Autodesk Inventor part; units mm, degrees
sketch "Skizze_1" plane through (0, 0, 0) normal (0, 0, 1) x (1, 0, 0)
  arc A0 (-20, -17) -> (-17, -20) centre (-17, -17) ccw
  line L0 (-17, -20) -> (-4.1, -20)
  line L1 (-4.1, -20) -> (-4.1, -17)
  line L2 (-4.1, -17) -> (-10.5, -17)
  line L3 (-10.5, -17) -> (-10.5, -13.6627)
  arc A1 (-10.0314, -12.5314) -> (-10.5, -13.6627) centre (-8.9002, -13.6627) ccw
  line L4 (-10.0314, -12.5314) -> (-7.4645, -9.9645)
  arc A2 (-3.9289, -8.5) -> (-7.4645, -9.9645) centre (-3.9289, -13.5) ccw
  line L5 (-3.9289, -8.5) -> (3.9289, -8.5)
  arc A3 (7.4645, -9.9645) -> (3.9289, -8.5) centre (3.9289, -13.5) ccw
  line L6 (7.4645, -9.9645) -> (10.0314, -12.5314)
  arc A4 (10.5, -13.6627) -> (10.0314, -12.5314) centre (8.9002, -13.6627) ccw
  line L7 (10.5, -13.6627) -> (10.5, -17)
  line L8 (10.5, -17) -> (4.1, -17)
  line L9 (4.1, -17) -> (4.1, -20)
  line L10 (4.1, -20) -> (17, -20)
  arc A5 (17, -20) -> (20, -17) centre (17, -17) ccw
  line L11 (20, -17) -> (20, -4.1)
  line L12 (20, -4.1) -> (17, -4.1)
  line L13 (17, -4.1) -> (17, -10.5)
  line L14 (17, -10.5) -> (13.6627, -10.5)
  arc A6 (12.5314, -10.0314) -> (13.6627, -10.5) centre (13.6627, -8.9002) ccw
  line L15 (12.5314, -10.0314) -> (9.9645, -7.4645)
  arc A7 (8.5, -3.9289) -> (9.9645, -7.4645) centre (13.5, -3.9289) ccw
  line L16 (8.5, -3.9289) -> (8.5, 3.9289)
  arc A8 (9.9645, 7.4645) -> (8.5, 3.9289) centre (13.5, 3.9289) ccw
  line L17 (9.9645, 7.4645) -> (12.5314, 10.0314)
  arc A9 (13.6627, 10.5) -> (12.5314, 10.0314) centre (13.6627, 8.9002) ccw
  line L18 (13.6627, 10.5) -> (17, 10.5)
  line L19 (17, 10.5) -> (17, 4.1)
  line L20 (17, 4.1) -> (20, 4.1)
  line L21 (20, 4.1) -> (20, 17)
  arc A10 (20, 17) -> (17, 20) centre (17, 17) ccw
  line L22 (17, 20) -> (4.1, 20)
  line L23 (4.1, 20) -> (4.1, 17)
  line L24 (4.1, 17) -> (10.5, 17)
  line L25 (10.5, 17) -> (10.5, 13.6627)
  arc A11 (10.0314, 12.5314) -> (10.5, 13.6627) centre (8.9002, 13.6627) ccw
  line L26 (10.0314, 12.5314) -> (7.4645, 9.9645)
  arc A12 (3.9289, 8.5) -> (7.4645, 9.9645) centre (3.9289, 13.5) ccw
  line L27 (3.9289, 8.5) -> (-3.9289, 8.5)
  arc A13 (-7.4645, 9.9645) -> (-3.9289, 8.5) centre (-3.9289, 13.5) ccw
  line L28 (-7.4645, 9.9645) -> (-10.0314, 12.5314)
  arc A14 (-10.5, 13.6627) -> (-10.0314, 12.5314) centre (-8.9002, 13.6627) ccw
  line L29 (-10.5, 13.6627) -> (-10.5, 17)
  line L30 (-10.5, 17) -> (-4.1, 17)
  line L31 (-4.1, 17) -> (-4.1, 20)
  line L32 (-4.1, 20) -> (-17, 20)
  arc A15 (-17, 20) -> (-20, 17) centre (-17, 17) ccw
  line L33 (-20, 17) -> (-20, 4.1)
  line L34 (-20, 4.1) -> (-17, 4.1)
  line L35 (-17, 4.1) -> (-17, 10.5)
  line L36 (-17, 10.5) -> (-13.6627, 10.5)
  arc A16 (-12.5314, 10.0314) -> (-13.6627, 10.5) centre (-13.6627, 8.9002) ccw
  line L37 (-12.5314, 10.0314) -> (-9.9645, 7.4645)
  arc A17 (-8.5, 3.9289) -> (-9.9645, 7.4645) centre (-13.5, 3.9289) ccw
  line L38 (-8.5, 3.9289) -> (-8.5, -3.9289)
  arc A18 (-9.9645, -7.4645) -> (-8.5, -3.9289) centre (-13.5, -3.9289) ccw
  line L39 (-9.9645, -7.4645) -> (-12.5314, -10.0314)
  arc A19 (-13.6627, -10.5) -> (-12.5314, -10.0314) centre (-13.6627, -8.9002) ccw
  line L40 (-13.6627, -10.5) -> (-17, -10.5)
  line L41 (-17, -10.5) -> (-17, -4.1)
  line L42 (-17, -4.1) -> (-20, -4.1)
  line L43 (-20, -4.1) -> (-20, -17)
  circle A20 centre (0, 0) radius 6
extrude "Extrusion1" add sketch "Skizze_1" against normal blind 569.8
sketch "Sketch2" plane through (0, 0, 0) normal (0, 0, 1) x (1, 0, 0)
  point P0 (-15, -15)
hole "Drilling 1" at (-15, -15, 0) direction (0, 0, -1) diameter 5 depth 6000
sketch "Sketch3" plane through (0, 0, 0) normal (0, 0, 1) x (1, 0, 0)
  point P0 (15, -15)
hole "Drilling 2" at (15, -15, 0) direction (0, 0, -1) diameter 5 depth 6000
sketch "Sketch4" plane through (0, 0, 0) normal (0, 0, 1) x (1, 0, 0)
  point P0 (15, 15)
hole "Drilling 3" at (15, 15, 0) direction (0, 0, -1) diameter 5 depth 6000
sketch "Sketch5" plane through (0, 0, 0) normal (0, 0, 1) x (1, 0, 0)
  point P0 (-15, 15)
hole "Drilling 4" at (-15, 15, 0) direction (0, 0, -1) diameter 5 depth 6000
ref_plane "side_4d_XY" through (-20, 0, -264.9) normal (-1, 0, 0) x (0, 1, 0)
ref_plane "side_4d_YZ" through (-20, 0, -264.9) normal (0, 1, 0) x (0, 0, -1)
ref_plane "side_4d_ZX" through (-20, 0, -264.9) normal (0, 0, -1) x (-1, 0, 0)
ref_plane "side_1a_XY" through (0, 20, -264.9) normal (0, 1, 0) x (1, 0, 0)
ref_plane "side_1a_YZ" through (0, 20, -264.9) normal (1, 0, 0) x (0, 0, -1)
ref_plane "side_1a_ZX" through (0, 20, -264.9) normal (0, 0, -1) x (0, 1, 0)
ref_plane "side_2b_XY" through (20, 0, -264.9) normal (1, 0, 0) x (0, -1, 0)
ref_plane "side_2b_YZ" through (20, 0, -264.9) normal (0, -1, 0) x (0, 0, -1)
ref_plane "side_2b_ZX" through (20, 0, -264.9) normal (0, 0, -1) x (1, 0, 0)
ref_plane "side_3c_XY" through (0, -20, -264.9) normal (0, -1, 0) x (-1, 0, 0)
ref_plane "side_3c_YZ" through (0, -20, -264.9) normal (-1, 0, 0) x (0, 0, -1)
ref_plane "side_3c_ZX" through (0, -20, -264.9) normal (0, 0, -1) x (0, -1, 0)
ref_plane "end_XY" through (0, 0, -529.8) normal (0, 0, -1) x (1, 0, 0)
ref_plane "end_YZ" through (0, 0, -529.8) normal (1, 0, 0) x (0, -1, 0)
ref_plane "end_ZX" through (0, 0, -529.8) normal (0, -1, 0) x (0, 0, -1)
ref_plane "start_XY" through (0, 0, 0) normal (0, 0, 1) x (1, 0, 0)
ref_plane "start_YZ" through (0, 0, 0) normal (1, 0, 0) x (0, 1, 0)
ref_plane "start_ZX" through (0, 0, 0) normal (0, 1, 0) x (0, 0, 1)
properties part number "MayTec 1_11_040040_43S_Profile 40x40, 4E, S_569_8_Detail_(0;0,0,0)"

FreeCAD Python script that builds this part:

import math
import FreeCAD as App
import Part
import Sketcher

V = App.Vector

doc = App.newDocument("Part")
body = doc.addObject("PartDesign::Body", "Body")

# Sketch on XY plane
sketch1 = body.newObject("Sketcher::SketchObject", "Sketch")
sketch1.AttachmentSupport = (doc.getObject("XY_Plane"), [""])
sketch1.MapMode = "FlatFace"
sketch1.addGeometry(Part.LineSegment(V(-20, -4.1, 0), V(-20, -17, 0)), False)
sketch1.addGeometry(Part.ArcOfCircle(Part.Circle(V(-17, -17, 0), V(0, 0, 1), 3), math.radians(180), math.radians(270)), False)
sketch1.addGeometry(Part.LineSegment(V(-17, -20, 0), V(-4.1, -20, 0)), False)
sketch1.addGeometry(Part.LineSegment(V(-4.1, -20, 0), V(-4.1, -17, 0)), False)
sketch1.addGeometry(Part.LineSegment(V(-4.1, -17, 0), V(-10.5, -17, 0)), False)
sketch1.addGeometry(Part.LineSegment(V(-10.5, -17, 0), V(-10.5, -13.6627, 0)), False)
sketch1.addGeometry(Part.ArcOfCircle(Part.Circle(V(-8.9002, -13.6627, 0), V(0, 0, 1), 1.599829), math.radians(134.997468), math.radians(180)), False)
sketch1.addGeometry(Part.LineSegment(V(-10.0314, -12.5314, 0), V(-7.4645, -9.9645, 0)), False)
sketch1.addGeometry(Part.ArcOfCircle(Part.Circle(V(-3.9289, -13.5, 0), V(0, 0, 1), 5), math.radians(90), math.radians(135.00081)), False)
sketch1.addGeometry(Part.LineSegment(V(-3.9289, -8.5, 0), V(3.9289, -8.5, 0)), False)
sketch1.addGeometry(Part.ArcOfCircle(Part.Circle(V(3.9289, -13.5, 0), V(0, 0, 1), 5.000023), math.radians(44.99919), math.radians(90)), False)
sketch1.addGeometry(Part.LineSegment(V(7.4645, -9.9645, 0), V(10.0314, -12.5314, 0)), False)
sketch1.addGeometry(Part.ArcOfCircle(Part.Circle(V(8.9002, -13.6627, 0), V(0, 0, 1), 1.5998), math.radians(0), math.radians(45.002532)), False)
sketch1.addGeometry(Part.LineSegment(V(10.5, -13.6627, 0), V(10.5, -17, 0)), False)
sketch1.addGeometry(Part.LineSegment(V(10.5, -17, 0), V(4.1, -17, 0)), False)
sketch1.addGeometry(Part.LineSegment(V(4.1, -17, 0), V(4.1, -20, 0)), False)
sketch1.addGeometry(Part.LineSegment(V(4.1, -20, 0), V(17, -20, 0)), False)
sketch1.addGeometry(Part.ArcOfCircle(Part.Circle(V(17, -17, 0), V(0, 0, 1), 3), math.radians(-90), math.radians(0)), False)
sketch1.addGeometry(Part.LineSegment(V(20, -17, 0), V(20, -4.1, 0)), False)
sketch1.addGeometry(Part.LineSegment(V(20, -4.1, 0), V(17, -4.1, 0)), False)
sketch1.addGeometry(Part.LineSegment(V(17, -4.1, 0), V(17, -10.5, 0)), False)
sketch1.addGeometry(Part.LineSegment(V(17, -10.5, 0), V(13.6627, -10.5, 0)), False)
sketch1.addGeometry(Part.ArcOfCircle(Part.Circle(V(13.6627, -8.9002, 0), V(0, 0, 1), 1.599829), math.radians(-135.002532), math.radians(-90)), False)
sketch1.addGeometry(Part.LineSegment(V(12.5314, -10.0314, 0), V(9.9645, -7.4645, 0)), False)
sketch1.addGeometry(Part.ArcOfCircle(Part.Circle(V(13.5, -3.9289, 0), V(0, 0, 1), 5), math.radians(180), math.radians(225.00081)), False)
sketch1.addGeometry(Part.LineSegment(V(8.5, -3.9289, 0), V(8.5, 3.9289, 0)), False)
sketch1.addGeometry(Part.ArcOfCircle(Part.Circle(V(13.5, 3.9289, 0), V(0, 0, 1), 5.000023), math.radians(134.99919), math.radians(180)), False)
sketch1.addGeometry(Part.LineSegment(V(9.9645, 7.4645, 0), V(12.5314, 10.0314, 0)), False)
sketch1.addGeometry(Part.ArcOfCircle(Part.Circle(V(13.6627, 8.9002, 0), V(0, 0, 1), 1.5998), math.radians(90), math.radians(135.002532)), False)
sketch1.addGeometry(Part.LineSegment(V(13.6627, 10.5, 0), V(17, 10.5, 0)), False)
sketch1.addGeometry(Part.LineSegment(V(17, 10.5, 0), V(17, 4.1, 0)), False)
sketch1.addGeometry(Part.LineSegment(V(17, 4.1, 0), V(20, 4.1, 0)), False)
sketch1.addGeometry(Part.LineSegment(V(20, 4.1, 0), V(20, 17, 0)), False)
sketch1.addGeometry(Part.ArcOfCircle(Part.Circle(V(17, 17, 0), V(0, 0, 1), 3), math.radians(0), math.radians(90)), False)
sketch1.addGeometry(Part.LineSegment(V(17, 20, 0), V(4.1, 20, 0)), False)
sketch1.addGeometry(Part.LineSegment(V(4.1, 20, 0), V(4.1, 17, 0)), False)
sketch1.addGeometry(Part.LineSegment(V(4.1, 17, 0), V(10.5, 17, 0)), False)
sketch1.addGeometry(Part.LineSegment(V(10.5, 17, 0), V(10.5, 13.6627, 0)), False)
sketch1.addGeometry(Part.ArcOfCircle(Part.Circle(V(8.9002, 13.6627, 0), V(0, 0, 1), 1.599829), math.radians(-45.002532), math.radians(0)), False)
sketch1.addGeometry(Part.LineSegment(V(10.0314, 12.5314, 0), V(7.4645, 9.9645, 0)), False)
sketch1.addGeometry(Part.ArcOfCircle(Part.Circle(V(3.9289, 13.5, 0), V(0, 0, 1), 5), math.radians(-90), math.radians(-44.99919)), False)
sketch1.addGeometry(Part.LineSegment(V(3.9289, 8.5, 0), V(-3.9289, 8.5, 0)), False)
sketch1.addGeometry(Part.ArcOfCircle(Part.Circle(V(-3.9289, 13.5, 0), V(0, 0, 1), 5.000023), math.radians(-135.00081), math.radians(-90)), False)
sketch1.addGeometry(Part.LineSegment(V(-7.4645, 9.9645, 0), V(-10.0314, 12.5314, 0)), False)
sketch1.addGeometry(Part.ArcOfCircle(Part.Circle(V(-8.9002, 13.6627, 0), V(0, 0, 1), 1.5998), math.radians(180), math.radians(225.002532)), False)
sketch1.addGeometry(Part.LineSegment(V(-10.5, 13.6627, 0), V(-10.5, 17, 0)), False)
sketch1.addGeometry(Part.LineSegment(V(-10.5, 17, 0), V(-4.1, 17, 0)), False)
sketch1.addGeometry(Part.LineSegment(V(-4.1, 17, 0), V(-4.1, 20, 0)), False)
sketch1.addGeometry(Part.LineSegment(V(-4.1, 20, 0), V(-17, 20, 0)), False)
sketch1.addGeometry(Part.ArcOfCircle(Part.Circle(V(-17, 17, 0), V(0, 0, 1), 3), math.radians(90), math.radians(180)), False)
sketch1.addGeometry(Part.LineSegment(V(-20, 17, 0), V(-20, 4.1, 0)), False)
sketch1.addGeometry(Part.LineSegment(V(-20, 4.1, 0), V(-17, 4.1, 0)), False)
sketch1.addGeometry(Part.LineSegment(V(-17, 4.1, 0), V(-17, 10.5, 0)), False)
sketch1.addGeometry(Part.LineSegment(V(-17, 10.5, 0), V(-13.6627, 10.5, 0)), False)
sketch1.addGeometry(Part.ArcOfCircle(Part.Circle(V(-13.6627, 8.9002, 0), V(0, 0, 1), 1.599829), math.radians(44.997468), math.radians(90)), False)
sketch1.addGeometry(Part.LineSegment(V(-12.5314, 10.0314, 0), V(-9.9645, 7.4645, 0)), False)
sketch1.addGeometry(Part.ArcOfCircle(Part.Circle(V(-13.5, 3.9289, 0), V(0, 0, 1), 5), math.radians(0), math.radians(45.00081)), False)
sketch1.addGeometry(Part.LineSegment(V(-8.5, 3.9289, 0), V(-8.5, -3.9289, 0)), False)
sketch1.addGeometry(Part.ArcOfCircle(Part.Circle(V(-13.5, -3.9289, 0), V(0, 0, 1), 5.000023), math.radians(-45.00081), math.radians(0)), False)
sketch1.addGeometry(Part.LineSegment(V(-9.9645, -7.4645, 0), V(-12.5314, -10.0314, 0)), False)
sketch1.addGeometry(Part.ArcOfCircle(Part.Circle(V(-13.6627, -8.9002, 0), V(0, 0, 1), 1.5998), math.radians(-90), math.radians(-44.997468)), False)
sketch1.addGeometry(Part.LineSegment(V(-13.6627, -10.5, 0), V(-17, -10.5, 0)), False)
sketch1.addGeometry(Part.LineSegment(V(-17, -10.5, 0), V(-17, -4.1, 0)), False)
sketch1.addGeometry(Part.LineSegment(V(-17, -4.1, 0), V(-20, -4.1, 0)), False)
sketch1.addGeometry(Part.Circle(V(0, 0, 0), V(0, 0, 1), 6), False)
sketch1.addConstraint(Sketcher.Constraint("Tangent", 0, 2, 1, 1))
sketch1.addConstraint(Sketcher.Constraint("Tangent", 1, 2, 2, 1))
sketch1.addConstraint(Sketcher.Constraint("Coincident", 2, 2, 3, 1))
sketch1.addConstraint(Sketcher.Constraint("Coincident", 3, 2, 4, 1))
sketch1.addConstraint(Sketcher.Constraint("Coincident", 4, 2, 5, 1))
sketch1.addConstraint(Sketcher.Constraint("Tangent", 5, 2, 6, 2))
sketch1.addConstraint(Sketcher.Constraint("Tangent", 6, 1, 7, 1))
sketch1.addConstraint(Sketcher.Constraint("Tangent", 7, 2, 8, 2))
sketch1.addConstraint(Sketcher.Constraint("Tangent", 8, 1, 9, 1))
sketch1.addConstraint(Sketcher.Constraint("Tangent", 9, 2, 10, 2))
sketch1.addConstraint(Sketcher.Constraint("Tangent", 10, 1, 11, 1))
sketch1.addConstraint(Sketcher.Constraint("Tangent", 11, 2, 12, 2))
sketch1.addConstraint(Sketcher.Constraint("Tangent", 12, 1, 13, 1))
sketch1.addConstraint(Sketcher.Constraint("Coincident", 13, 2, 14, 1))
sketch1.addConstraint(Sketcher.Constraint("Coincident", 14, 2, 15, 1))
sketch1.addConstraint(Sketcher.Constraint("Coincident", 15, 2, 16, 1))
sketch1.addConstraint(Sketcher.Constraint("Tangent", 16, 2, 17, 1))
sketch1.addConstraint(Sketcher.Constraint("Tangent", 17, 2, 18, 1))
sketch1.addConstraint(Sketcher.Constraint("Coincident", 18, 2, 19, 1))
sketch1.addConstraint(Sketcher.Constraint("Coincident", 19, 2, 20, 1))
sketch1.addConstraint(Sketcher.Constraint("Coincident", 20, 2, 21, 1))
sketch1.addConstraint(Sketcher.Constraint("Tangent", 21, 2, 22, 2))
sketch1.addConstraint(Sketcher.Constraint("Tangent", 22, 1, 23, 1))
sketch1.addConstraint(Sketcher.Constraint("Tangent", 23, 2, 24, 2))
sketch1.addConstraint(Sketcher.Constraint("Tangent", 24, 1, 25, 1))
sketch1.addConstraint(Sketcher.Constraint("Tangent", 25, 2, 26, 2))
sketch1.addConstraint(Sketcher.Constraint("Tangent", 26, 1, 27, 1))
sketch1.addConstraint(Sketcher.Constraint("Tangent", 27, 2, 28, 2))
sketch1.addConstraint(Sketcher.Constraint("Tangent", 28, 1, 29, 1))
sketch1.addConstraint(Sketcher.Constraint("Coincident", 29, 2, 30, 1))
sketch1.addConstraint(Sketcher.Constraint("Coincident", 30, 2, 31, 1))
sketch1.addConstraint(Sketcher.Constraint("Coincident", 31, 2, 32, 1))
sketch1.addConstraint(Sketcher.Constraint("Tangent", 32, 2, 33, 1))
sketch1.addConstraint(Sketcher.Constraint("Tangent", 33, 2, 34, 1))
sketch1.addConstraint(Sketcher.Constraint("Coincident", 34, 2, 35, 1))
sketch1.addConstraint(Sketcher.Constraint("Coincident", 35, 2, 36, 1))
sketch1.addConstraint(Sketcher.Constraint("Coincident", 36, 2, 37, 1))
sketch1.addConstraint(Sketcher.Constraint("Tangent", 37, 2, 38, 2))
sketch1.addConstraint(Sketcher.Constraint("Tangent", 38, 1, 39, 1))
sketch1.addConstraint(Sketcher.Constraint("Tangent", 39, 2, 40, 2))
sketch1.addConstraint(Sketcher.Constraint("Tangent", 40, 1, 41, 1))
sketch1.addConstraint(Sketcher.Constraint("Tangent", 41, 2, 42, 2))
sketch1.addConstraint(Sketcher.Constraint("Tangent", 42, 1, 43, 1))
sketch1.addConstraint(Sketcher.Constraint("Tangent", 43, 2, 44, 2))
sketch1.addConstraint(Sketcher.Constraint("Tangent", 44, 1, 45, 1))
sketch1.addConstraint(Sketcher.Constraint("Coincident", 45, 2, 46, 1))
sketch1.addConstraint(Sketcher.Constraint("Coincident", 46, 2, 47, 1))
sketch1.addConstraint(Sketcher.Constraint("Coincident", 47, 2, 48, 1))
sketch1.addConstraint(Sketcher.Constraint("Tangent", 48, 2, 49, 1))
sketch1.addConstraint(Sketcher.Constraint("Tangent", 49, 2, 50, 1))
sketch1.addConstraint(Sketcher.Constraint("Coincident", 50, 2, 51, 1))
sketch1.addConstraint(Sketcher.Constraint("Coincident", 51, 2, 52, 1))
sketch1.addConstraint(Sketcher.Constraint("Coincident", 52, 2, 53, 1))
sketch1.addConstraint(Sketcher.Constraint("Tangent", 53, 2, 54, 2))
sketch1.addConstraint(Sketcher.Constraint("Tangent", 54, 1, 55, 1))
sketch1.addConstraint(Sketcher.Constraint("Tangent", 55, 2, 56, 2))
sketch1.addConstraint(Sketcher.Constraint("Tangent", 56, 1, 57, 1))
sketch1.addConstraint(Sketcher.Constraint("Tangent", 57, 2, 58, 2))
sketch1.addConstraint(Sketcher.Constraint("Tangent", 58, 1, 59, 1))
sketch1.addConstraint(Sketcher.Constraint("Tangent", 59, 2, 60, 2))
sketch1.addConstraint(Sketcher.Constraint("Tangent", 60, 1, 61, 1))
sketch1.addConstraint(Sketcher.Constraint("Coincident", 61, 2, 62, 1))
sketch1.addConstraint(Sketcher.Constraint("Coincident", 62, 2, 63, 1))
sketch1.addConstraint(Sketcher.Constraint("Coincident", 63, 2, 0, 1))
sketch1.addConstraint(Sketcher.Constraint("Vertical", 0))
sketch1.addConstraint(Sketcher.Constraint("Horizontal", 2))
sketch1.addConstraint(Sketcher.Constraint("Vertical", 3))
sketch1.addConstraint(Sketcher.Constraint("Horizontal", 4))
sketch1.addConstraint(Sketcher.Constraint("Vertical", 5))
sketch1.addConstraint(Sketcher.Constraint("Horizontal", 9))
sketch1.addConstraint(Sketcher.Constraint("Vertical", 13))
sketch1.addConstraint(Sketcher.Constraint("Horizontal", 14))
sketch1.addConstraint(Sketcher.Constraint("Vertical", 15))
sketch1.addConstraint(Sketcher.Constraint("Horizontal", 16))
sketch1.addConstraint(Sketcher.Constraint("Vertical", 18))
sketch1.addConstraint(Sketcher.Constraint("Horizontal", 19))
sketch1.addConstraint(Sketcher.Constraint("Vertical", 20))
sketch1.addConstraint(Sketcher.Constraint("Horizontal", 21))
sketch1.addConstraint(Sketcher.Constraint("Vertical", 25))
sketch1.addConstraint(Sketcher.Constraint("Horizontal", 29))
sketch1.addConstraint(Sketcher.Constraint("Vertical", 30))
sketch1.addConstraint(Sketcher.Constraint("Horizontal", 31))
sketch1.addConstraint(Sketcher.Constraint("Vertical", 32))
sketch1.addConstraint(Sketcher.Constraint("Horizontal", 34))
sketch1.addConstraint(Sketcher.Constraint("Vertical", 35))
sketch1.addConstraint(Sketcher.Constraint("Horizontal", 36))
sketch1.addConstraint(Sketcher.Constraint("Vertical", 37))
sketch1.addConstraint(Sketcher.Constraint("Horizontal", 41))
sketch1.addConstraint(Sketcher.Constraint("Vertical", 45))
sketch1.addConstraint(Sketcher.Constraint("Horizontal", 46))
sketch1.addConstraint(Sketcher.Constraint("Vertical", 47))
sketch1.addConstraint(Sketcher.Constraint("Horizontal", 48))
sketch1.addConstraint(Sketcher.Constraint("Vertical", 50))
sketch1.addConstraint(Sketcher.Constraint("Horizontal", 51))
sketch1.addConstraint(Sketcher.Constraint("Vertical", 52))
sketch1.addConstraint(Sketcher.Constraint("Horizontal", 53))
sketch1.addConstraint(Sketcher.Constraint("Vertical", 57))
sketch1.addConstraint(Sketcher.Constraint("Horizontal", 61))
sketch1.addConstraint(Sketcher.Constraint("Vertical", 62))
sketch1.addConstraint(Sketcher.Constraint("Horizontal", 63))
sketch1.addConstraint(Sketcher.Constraint("Coincident", 64, 3, -1, 1))
sketch1.addConstraint(Sketcher.Constraint("Equal", 8, 10))
sketch1.addConstraint(Sketcher.Constraint("Equal", 6, 12))
sketch1.addConstraint(Sketcher.Constraint("Equal", 1, 17))
sketch1.addConstraint(Sketcher.Constraint("Equal", 12, 22))
sketch1.addConstraint(Sketcher.Constraint("Equal", 10, 24))
sketch1.addConstraint(Sketcher.Constraint("Equal", 24, 26))
sketch1.addConstraint(Sketcher.Constraint("Equal", 22, 28))
sketch1.addConstraint(Sketcher.Constraint("Equal", 17, 33))
sketch1.addConstraint(Sketcher.Constraint("Equal", 28, 38))
sketch1.addConstraint(Sketcher.Constraint("Equal", 26, 40))
sketch1.addConstraint(Sketcher.Constraint("Equal", 40, 42))
sketch1.addConstraint(Sketcher.Constraint("Equal", 38, 44))
sketch1.addConstraint(Sketcher.Constraint("Equal", 33, 49))
sketch1.addConstraint(Sketcher.Constraint("Equal", 44, 54))
sketch1.addConstraint(Sketcher.Constraint("Equal", 42, 56))
sketch1.addConstraint(Sketcher.Constraint("Equal", 56, 58))
sketch1.addConstraint(Sketcher.Constraint("Equal", 54, 60))
sketch1.addConstraint(Sketcher.Constraint("Symmetric", 1, 3, 33, 3, -1, 1))
sketch1.addConstraint(Sketcher.Constraint("Symmetric", 6, 3, 38, 3, -1, 1))
sketch1.addConstraint(Sketcher.Constraint("Symmetric", 8, 3, 40, 3, -1, 1))
sketch1.addConstraint(Sketcher.Constraint("Symmetric", 12, 3, 44, 3, -1, 1))
sketch1.addConstraint(Sketcher.Constraint("Symmetric", 17, 3, 49, 3, -1, 1))
sketch1.addConstraint(Sketcher.Constraint("Symmetric", 22, 3, 54, 3, -1, 1))
sketch1.addConstraint(Sketcher.Constraint("Symmetric", 24, 3, 56, 3, -1, 1))
sketch1.addConstraint(Sketcher.Constraint("Symmetric", 28, 3, 60, 3, -1, 1))
sketch1.addConstraint(Sketcher.Constraint("Symmetric", 3, 2, 35, 2, -1, 1))
sketch1.addConstraint(Sketcher.Constraint("Symmetric", 14, 2, 46, 2, -1, 1))
sketch1.addConstraint(Sketcher.Constraint("Symmetric", 19, 2, 51, 2, -1, 1))
sketch1.addConstraint(Sketcher.Constraint("Symmetric", 30, 2, 62, 2, -1, 1))
sketch1.addConstraint(Sketcher.Constraint("Symmetric", 6, 3, 12, 3, -2))
sketch1.addConstraint(Sketcher.Constraint("Symmetric", 1, 3, 17, 3, -2))
sketch1.addConstraint(Sketcher.Constraint("Symmetric", 28, 3, 54, 3, -2))
sketch1.addConstraint(Sketcher.Constraint("Symmetric", 3, 2, 14, 2, -2))
sketch1.addConstraint(Sketcher.Constraint("Symmetric", 30, 2, 51, 2, -2))
sketch1.addConstraint(Sketcher.Constraint("Perpendicular", 7, 11))
sketch1.addConstraint(Sketcher.Constraint("Parallel", 11, 23))
sketch1.addConstraint(Sketcher.Constraint("Perpendicular", 23, 27))
sketch1.addConstraint(Sketcher.Constraint("Perpendicular", 39, 43))
sketch1.addConstraint(Sketcher.Constraint("Perpendicular", 55, 59))
sketch1.addConstraint(Sketcher.Constraint("Horizontal", 26, 3, 56, 3))
sketch1.addConstraint(Sketcher.Constraint("Horizontal", 0, 2, 3, 2))
sketch1.addConstraint(Sketcher.Constraint("Vertical", 16, 2, 19, 2))
sketch1.addConstraint(Sketcher.Constraint("Equal", 48, 0))
sketch1.addConstraint(Sketcher.Constraint("Equal", 61, 5))
sketch1.addConstraint(Sketcher.Constraint("Equal", 46, 20))
sketch1.addConstraint(Sketcher.Constraint("Equal", 41, 25))
sketch1.addConstraint(Sketcher.Constraint("Equal", 11, 23))
sketch1.addConstraint(Sketcher.Constraint("Diameter", 64, 12.0))
sketch1.addConstraint(Sketcher.Constraint("Radius", 1, 3.0))
sketch1.addConstraint(Sketcher.Constraint("Radius", 8, 5.0))
sketch1.addConstraint(Sketcher.Constraint("DistanceX", 2, 1, 2, 2, 12.9))
sketch1.addConstraint(Sketcher.Constraint("DistanceX", 4, 2, 4, 1, 6.4))
sketch1.addConstraint(Sketcher.Constraint("DistanceX", 1, 3, -1, 1, 17.0))
sketch1.addConstraint(Sketcher.Constraint("DistanceY", 8, 3, -1, 1, 13.5))
sketch1.addConstraint(Sketcher.Constraint("Radius", 6, 1.5998))
sketch1.addConstraint(Sketcher.Constraint("DistanceX", 9, 1, 9, 2, 7.8578))
pad1 = body.newObject("PartDesign::Pad", "Pad")
pad1.Profile = sketch1
pad1.Length = 569.8
pad1.Reversed = True

# Sketch on XY plane
sketch2 = body.newObject("Sketcher::SketchObject", "Sketch001")
sketch2.AttachmentSupport = (doc.getObject("XY_Plane"), [""])
sketch2.MapMode = "FlatFace"
sketch2.addGeometry(Part.Circle(V(-15, -15, 0), V(0, 0, 1), 2.5), False)
sketch2.addConstraint(Sketcher.Constraint("Diameter", 0, 5.0))
sketch2.addConstraint(Sketcher.Constraint("DistanceX", 0, 3, -1, 1, 15.0))
sketch2.addConstraint(Sketcher.Constraint("DistanceY", 0, 3, -1, 1, 15.0))
doc.recompute()
hole = body.newObject("PartDesign::Hole", "Hole")
hole.Profile = sketch2
hole.ThreadType = "None"
hole.Diameter = 5
hole.DepthType = "Dimension"
hole.Depth = 6000
hole.DrillPoint = "Flat"

# Sketch on XY plane
sketch3 = body.newObject("Sketcher::SketchObject", "Sketch002")
sketch3.AttachmentSupport = (doc.getObject("XY_Plane"), [""])
sketch3.MapMode = "FlatFace"
sketch3.addGeometry(Part.Circle(V(15, -15, 0), V(0, 0, 1), 2.5), False)
sketch3.addConstraint(Sketcher.Constraint("Diameter", 0, 5.0))
sketch3.addConstraint(Sketcher.Constraint("DistanceX", -1, 1, 0, 3, 15.0))
sketch3.addConstraint(Sketcher.Constraint("DistanceY", 0, 3, -1, 1, 15.0))
doc.recompute()
hole2 = body.newObject("PartDesign::Hole", "Hole001")
hole2.Profile = sketch3
hole2.ThreadType = "None"
hole2.Diameter = 5
hole2.DepthType = "Dimension"
hole2.Depth = 6000
hole2.DrillPoint = "Flat"

# Sketch on XY plane
sketch4 = body.newObject("Sketcher::SketchObject", "Sketch003")
sketch4.AttachmentSupport = (doc.getObject("XY_Plane"), [""])
sketch4.MapMode = "FlatFace"
sketch4.addGeometry(Part.Circle(V(15, 15, 0), V(0, 0, 1), 2.5), False)
sketch4.addConstraint(Sketcher.Constraint("Diameter", 0, 5.0))
sketch4.addConstraint(Sketcher.Constraint("DistanceX", -1, 1, 0, 3, 15.0))
sketch4.addConstraint(Sketcher.Constraint("DistanceY", -1, 1, 0, 3, 15.0))
doc.recompute()
hole3 = body.newObject("PartDesign::Hole", "Hole002")
hole3.Profile = sketch4
hole3.ThreadType = "None"
hole3.Diameter = 5
hole3.DepthType = "Dimension"
hole3.Depth = 6000
hole3.DrillPoint = "Flat"

# Sketch on XY plane
sketch5 = body.newObject("Sketcher::SketchObject", "Sketch004")
sketch5.AttachmentSupport = (doc.getObject("XY_Plane"), [""])
sketch5.MapMode = "FlatFace"
sketch5.addGeometry(Part.Circle(V(-15, 15, 0), V(0, 0, 1), 2.5), False)
sketch5.addConstraint(Sketcher.Constraint("Diameter", 0, 5.0))
sketch5.addConstraint(Sketcher.Constraint("DistanceX", 0, 3, -1, 1, 15.0))
sketch5.addConstraint(Sketcher.Constraint("DistanceY", -1, 1, 0, 3, 15.0))
doc.recompute()
hole4 = body.newObject("PartDesign::Hole", "Hole003")
hole4.Profile = sketch5
hole4.ThreadType = "None"
hole4.Diameter = 5
hole4.DepthType = "Dimension"
hole4.Depth = 6000
hole4.DrillPoint = "Flat"

doc.recompute()
